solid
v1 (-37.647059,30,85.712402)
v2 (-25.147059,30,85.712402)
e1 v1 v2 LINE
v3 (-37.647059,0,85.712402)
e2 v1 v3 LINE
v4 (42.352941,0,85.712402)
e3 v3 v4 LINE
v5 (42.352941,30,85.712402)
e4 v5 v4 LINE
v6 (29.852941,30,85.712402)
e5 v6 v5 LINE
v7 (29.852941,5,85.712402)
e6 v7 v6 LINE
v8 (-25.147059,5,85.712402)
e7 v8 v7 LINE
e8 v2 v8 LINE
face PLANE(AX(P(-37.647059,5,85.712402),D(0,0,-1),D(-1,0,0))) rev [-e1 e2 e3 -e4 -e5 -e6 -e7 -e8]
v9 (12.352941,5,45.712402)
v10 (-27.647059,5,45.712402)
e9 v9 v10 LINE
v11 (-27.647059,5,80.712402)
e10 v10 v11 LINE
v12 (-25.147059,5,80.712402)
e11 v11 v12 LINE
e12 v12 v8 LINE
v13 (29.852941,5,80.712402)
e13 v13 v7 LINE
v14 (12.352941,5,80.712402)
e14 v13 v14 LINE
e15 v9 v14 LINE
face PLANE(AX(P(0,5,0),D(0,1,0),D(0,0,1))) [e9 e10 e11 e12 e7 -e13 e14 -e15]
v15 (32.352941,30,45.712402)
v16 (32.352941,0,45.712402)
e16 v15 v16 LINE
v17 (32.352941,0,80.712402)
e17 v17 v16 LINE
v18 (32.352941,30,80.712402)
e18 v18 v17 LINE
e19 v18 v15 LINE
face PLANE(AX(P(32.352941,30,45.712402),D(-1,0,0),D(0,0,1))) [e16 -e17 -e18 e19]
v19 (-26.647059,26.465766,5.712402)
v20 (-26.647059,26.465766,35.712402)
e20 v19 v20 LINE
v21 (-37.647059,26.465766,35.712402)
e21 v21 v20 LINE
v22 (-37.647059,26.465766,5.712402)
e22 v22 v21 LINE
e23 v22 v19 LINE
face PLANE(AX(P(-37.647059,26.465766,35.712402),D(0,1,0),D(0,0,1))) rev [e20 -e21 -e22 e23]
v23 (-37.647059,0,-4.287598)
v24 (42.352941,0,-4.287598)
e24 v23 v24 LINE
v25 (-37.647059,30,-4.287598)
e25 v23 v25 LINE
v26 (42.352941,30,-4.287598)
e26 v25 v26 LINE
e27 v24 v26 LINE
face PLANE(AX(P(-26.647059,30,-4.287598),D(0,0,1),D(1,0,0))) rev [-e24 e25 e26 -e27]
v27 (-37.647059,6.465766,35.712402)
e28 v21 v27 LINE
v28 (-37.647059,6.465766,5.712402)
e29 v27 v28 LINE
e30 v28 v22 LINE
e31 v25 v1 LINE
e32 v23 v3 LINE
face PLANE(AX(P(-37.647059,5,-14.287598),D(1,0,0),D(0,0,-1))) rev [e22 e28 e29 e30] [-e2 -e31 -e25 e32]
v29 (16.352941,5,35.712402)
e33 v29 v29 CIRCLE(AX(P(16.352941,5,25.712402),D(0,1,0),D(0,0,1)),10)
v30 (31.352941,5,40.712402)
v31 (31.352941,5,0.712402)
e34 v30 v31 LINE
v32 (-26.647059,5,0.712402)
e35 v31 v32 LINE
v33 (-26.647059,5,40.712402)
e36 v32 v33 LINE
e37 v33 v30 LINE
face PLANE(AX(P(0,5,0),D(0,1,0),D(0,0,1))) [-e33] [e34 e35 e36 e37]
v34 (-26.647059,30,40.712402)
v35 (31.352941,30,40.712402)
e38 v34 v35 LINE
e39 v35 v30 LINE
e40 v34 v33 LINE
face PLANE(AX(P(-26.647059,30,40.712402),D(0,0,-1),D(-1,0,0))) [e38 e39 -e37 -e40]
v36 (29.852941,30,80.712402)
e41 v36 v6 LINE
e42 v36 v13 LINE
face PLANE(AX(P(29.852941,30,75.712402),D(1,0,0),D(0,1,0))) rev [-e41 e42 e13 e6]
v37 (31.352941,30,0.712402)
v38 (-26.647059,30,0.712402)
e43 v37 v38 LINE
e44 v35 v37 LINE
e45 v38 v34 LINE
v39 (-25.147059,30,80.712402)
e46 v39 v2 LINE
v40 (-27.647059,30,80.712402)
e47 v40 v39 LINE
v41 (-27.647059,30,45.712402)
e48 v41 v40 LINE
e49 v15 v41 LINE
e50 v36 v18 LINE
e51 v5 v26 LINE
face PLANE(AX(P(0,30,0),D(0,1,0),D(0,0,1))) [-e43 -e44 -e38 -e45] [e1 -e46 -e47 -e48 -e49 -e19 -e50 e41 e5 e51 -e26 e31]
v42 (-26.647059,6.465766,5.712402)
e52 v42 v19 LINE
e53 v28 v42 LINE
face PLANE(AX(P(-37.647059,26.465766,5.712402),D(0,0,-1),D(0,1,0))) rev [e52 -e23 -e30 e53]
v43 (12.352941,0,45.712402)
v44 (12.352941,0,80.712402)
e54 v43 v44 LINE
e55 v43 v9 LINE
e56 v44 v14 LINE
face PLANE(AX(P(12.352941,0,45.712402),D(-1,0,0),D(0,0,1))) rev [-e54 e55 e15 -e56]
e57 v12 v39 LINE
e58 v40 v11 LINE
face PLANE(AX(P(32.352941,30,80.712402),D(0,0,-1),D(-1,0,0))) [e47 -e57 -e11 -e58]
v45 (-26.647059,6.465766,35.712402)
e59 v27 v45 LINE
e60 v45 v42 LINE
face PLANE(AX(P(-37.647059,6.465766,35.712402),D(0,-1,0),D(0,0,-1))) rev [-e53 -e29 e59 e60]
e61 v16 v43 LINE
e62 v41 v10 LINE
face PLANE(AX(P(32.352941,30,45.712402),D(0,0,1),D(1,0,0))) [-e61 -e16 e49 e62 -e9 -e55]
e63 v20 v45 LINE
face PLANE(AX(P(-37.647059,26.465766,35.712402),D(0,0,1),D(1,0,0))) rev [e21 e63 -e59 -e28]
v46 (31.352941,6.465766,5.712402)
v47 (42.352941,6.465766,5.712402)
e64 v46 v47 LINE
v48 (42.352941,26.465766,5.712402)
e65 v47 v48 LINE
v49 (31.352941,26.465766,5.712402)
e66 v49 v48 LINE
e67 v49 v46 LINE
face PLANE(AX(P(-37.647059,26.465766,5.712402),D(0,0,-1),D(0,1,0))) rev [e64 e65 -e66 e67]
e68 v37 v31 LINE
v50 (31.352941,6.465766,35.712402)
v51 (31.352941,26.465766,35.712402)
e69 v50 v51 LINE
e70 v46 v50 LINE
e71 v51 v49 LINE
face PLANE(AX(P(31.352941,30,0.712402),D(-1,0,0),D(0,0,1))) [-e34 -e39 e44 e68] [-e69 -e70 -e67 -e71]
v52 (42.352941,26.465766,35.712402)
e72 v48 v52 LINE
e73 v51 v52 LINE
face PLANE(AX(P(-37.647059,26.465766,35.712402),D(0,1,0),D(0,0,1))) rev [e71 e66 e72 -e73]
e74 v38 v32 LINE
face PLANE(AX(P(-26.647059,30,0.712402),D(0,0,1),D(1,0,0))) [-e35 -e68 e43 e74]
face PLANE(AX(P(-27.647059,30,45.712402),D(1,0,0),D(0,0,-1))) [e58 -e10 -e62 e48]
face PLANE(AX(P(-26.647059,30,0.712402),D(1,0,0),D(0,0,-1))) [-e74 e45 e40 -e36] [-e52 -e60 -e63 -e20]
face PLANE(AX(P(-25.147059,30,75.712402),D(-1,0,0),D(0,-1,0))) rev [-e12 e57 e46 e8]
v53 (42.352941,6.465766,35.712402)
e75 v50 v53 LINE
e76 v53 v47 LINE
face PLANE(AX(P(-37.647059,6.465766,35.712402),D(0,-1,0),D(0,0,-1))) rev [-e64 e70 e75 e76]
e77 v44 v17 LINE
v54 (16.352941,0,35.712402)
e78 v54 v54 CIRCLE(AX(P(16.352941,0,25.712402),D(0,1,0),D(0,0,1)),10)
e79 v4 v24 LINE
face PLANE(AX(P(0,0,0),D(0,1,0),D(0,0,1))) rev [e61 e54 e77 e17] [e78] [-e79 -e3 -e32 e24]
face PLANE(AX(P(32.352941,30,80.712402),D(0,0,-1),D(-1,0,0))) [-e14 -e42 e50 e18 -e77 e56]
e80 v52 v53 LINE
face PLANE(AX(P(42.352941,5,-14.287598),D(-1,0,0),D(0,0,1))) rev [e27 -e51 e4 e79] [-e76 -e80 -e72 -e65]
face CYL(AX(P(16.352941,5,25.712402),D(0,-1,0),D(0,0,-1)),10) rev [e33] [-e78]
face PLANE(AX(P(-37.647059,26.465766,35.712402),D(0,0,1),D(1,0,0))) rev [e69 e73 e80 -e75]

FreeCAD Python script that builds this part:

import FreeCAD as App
import Part
import Sketcher
from FreeCAD import Vector
Q = App.Units.Quantity


def add_polygon(sketch, points):
    """Adds a closed chain of lines whose ends are joined by coincident constraints."""
    first, n = sketch.GeometryCount, len(points)
    for a, b in zip(points, points[1:] + points[:1]):
        sketch.addGeometry(Part.LineSegment(App.Vector(*a, 0), App.Vector(*b, 0)), False)
    for i in range(n):
        sketch.addConstraint(Sketcher.Constraint("Coincident", first + i, 2, first + (i + 1) % n, 1))

doc = App.newDocument("Part")
body = doc.addObject("PartDesign::Body", "Body")

# Sketch on XZ plane
sketch1 = body.newObject("Sketcher::SketchObject", "Sketch")
sketch1.AttachmentSupport = (doc.getObject("XZ_Plane"), [""])
sketch1.MapMode = "FlatFace"
add_polygon(sketch1, [(-38, -14), (-38, 86), (42, 86), (42, -14)])  # lines 0-3
sketch1.addGeometry(Part.Circle(Vector(16, 26, 0), Vector(0, 0, 1), 10), False)  # 4
sketch1.addConstraint([
    Sketcher.Constraint("Vertical", 0),
    Sketcher.Constraint("Horizontal", 1),
    Sketcher.Constraint("Vertical", 2),
    Sketcher.Constraint("Horizontal", 3),
    Sketcher.Constraint("Diameter", 4, Q("20 mm")),
    Sketcher.Constraint("DistanceX", 1, 1, 1, 2, Q("80 mm")),
    Sketcher.Constraint("DistanceY", 0, 1, 0, 2, Q("100 mm")),
    Sketcher.Constraint("DistanceX", 0, 2, 4, 3, Q("54 mm")),
    Sketcher.Constraint("DistanceY", 4, 3, 0, 2, Q("60 mm")),
    Sketcher.Constraint("DistanceX", -1, 1, 4, 3, Q("16.352941 mm")),
    Sketcher.Constraint("DistanceY", -1, 1, 4, 3, Q("25.712402 mm")),
])
pad1 = body.newObject("PartDesign::Pad", "Pad")
pad1.Profile = sketch1
pad1.Length = 5
pad1.Reversed = True

# Sketch on XZ plane
sketch2 = body.newObject("Sketcher::SketchObject", "Sketch001")
sketch2.AttachmentSupport = (doc.getObject("XZ_Plane"), [""])
sketch2.MapMode = "FlatFace"
sketch2.AttachmentOffset = App.Placement(Vector(0, 0, -5), App.Rotation())
add_polygon(sketch2, [(-38, -14), (-38, 86), (42, 86), (42, -14)])  # lines 0-3
add_polygon(sketch2, [(32, 81), (-28, 81), (-28, 46), (32, 46)])  # lines 4-7
add_polygon(sketch2, [(31, 41), (-27, 41), (-27, 1), (31, 1)])  # lines 8-11
sketch2.addConstraint([
    Sketcher.Constraint("Vertical", 0),
    Sketcher.Constraint("Horizontal", 1),
    Sketcher.Constraint("Vertical", 2),
    Sketcher.Constraint("Horizontal", 3),
    Sketcher.Constraint("Horizontal", 4),
    Sketcher.Constraint("Vertical", 5),
    Sketcher.Constraint("Horizontal", 6),
    Sketcher.Constraint("Vertical", 7),
    Sketcher.Constraint("Horizontal", 8),
    Sketcher.Constraint("Vertical", 9),
    Sketcher.Constraint("Horizontal", 10),
    Sketcher.Constraint("Vertical", 11),
    Sketcher.Constraint("DistanceX", 1, 1, 1, 2, Q("80 mm")),
    Sketcher.Constraint("DistanceX", 4, 2, 4, 1, Q("60 mm")),
    Sketcher.Constraint("DistanceX", 8, 2, 8, 1, Q("58 mm")),
    Sketcher.Constraint("DistanceY", 0, 1, 0, 2, Q("100 mm")),
    Sketcher.Constraint("DistanceY", 5, 2, 5, 1, Q("35 mm")),
    Sketcher.Constraint("DistanceY", 9, 2, 9, 1, Q("40 mm")),
    Sketcher.Constraint("DistanceX", 0, 2, 4, 2, Q("10 mm")),
    Sketcher.Constraint("DistanceY", 4, 2, 0, 2, Q("5 mm")),
    Sketcher.Constraint("DistanceX", 5, 2, 8, 2, Q("1 mm")),
    Sketcher.Constraint("DistanceY", 8, 2, 5, 2, Q("5 mm")),
    Sketcher.Constraint("DistanceX", 0, 2, -1, 1, Q("37.647059 mm")),
    Sketcher.Constraint("DistanceY", -1, 1, 0, 2, Q("85.712402 mm")),
])
pad2 = body.newObject("PartDesign::Pad", "Pad001")
pad2.Profile = sketch2
pad2.Length = 25
pad2.Reversed = True

# Sketch on XY plane
sketch3 = body.newObject("Sketcher::SketchObject", "Sketch002")
sketch3.AttachmentSupport = (doc.getObject("XY_Plane"), [""])
sketch3.MapMode = "FlatFace"
sketch3.AttachmentOffset = App.Placement(Vector(0, 0, -12.287598), App.Rotation())
add_polygon(sketch3, [(41, 29), (41, 1), (-37, 1), (-37, 29)])  # lines 0-3
sketch3.addConstraint([
    Sketcher.Constraint("Vertical", 0),
    Sketcher.Constraint("Horizontal", 1),
    Sketcher.Constraint("Vertical", 2),
    Sketcher.Constraint("Horizontal", 3),
    Sketcher.Constraint("DistanceX", 1, 2, 1, 1, Q("78 mm")),
    Sketcher.Constraint("DistanceY", -1, 1, 0, 2, Q("1 mm")),
    Sketcher.Constraint("DistanceY", 0, 2, 0, 1, Q("27.979665 mm")),
    Sketcher.Constraint("DistanceX", -1, 1, 0, 2, Q("41.352941 mm")),
])
pocket1 = body.newObject("PartDesign::Pocket", "Pocket")
pocket1.Profile = sketch3
pocket1.Length = 8
pocket1.Reversed = True

# Sketch on XZ plane
sketch4 = body.newObject("Sketcher::SketchObject", "Sketch003")
sketch4.AttachmentSupport = (doc.getObject("XZ_Plane"), [""])
sketch4.MapMode = "FlatFace"
sketch4.AttachmentOffset = App.Placement(Vector(0, 0, -30), App.Rotation())
add_polygon(sketch4, [(-38, -14), (-38, -4), (42, -4), (42, -14)])  # lines 0-3
sketch4.addConstraint([
    Sketcher.Constraint("Vertical", 0),
    Sketcher.Constraint("Horizontal", 1),
    Sketcher.Constraint("Vertical", 2),
    Sketcher.Constraint("Horizontal", 3),
    Sketcher.Constraint("DistanceX", 1, 1, 1, 2, Q("80 mm")),
    Sketcher.Constraint("DistanceY", 0, 1, 0, 2, Q("10 mm")),
    Sketcher.Constraint("DistanceX", 0, 2, -1, 1, Q("37.647059 mm")),
    Sketcher.Constraint("DistanceY", 0, 2, -1, 1, Q("4.287598 mm")),
])
pocket2 = body.newObject("PartDesign::Pocket", "Pocket001")
pocket2.Profile = sketch4
pocket2.Type = "ThroughAll"
pocket2.Reversed = True

# Sketch on YZ plane
sketch5 = body.newObject("Sketcher::SketchObject", "Sketch004")
sketch5.AttachmentSupport = (doc.getObject("YZ_Plane"), [""])
sketch5.MapMode = "FlatFace"
sketch5.AttachmentOffset = App.Placement(Vector(0, 0, 42.352941), App.Rotation())
add_polygon(sketch5, [(26, 36), (6, 36), (6, 6), (26, 6)])  # lines 0-3
sketch5.addConstraint([
    Sketcher.Constraint("Horizontal", 0),
    Sketcher.Constraint("Vertical", 1),
    Sketcher.Constraint("Horizontal", 2),
    Sketcher.Constraint("Vertical", 3),
    Sketcher.Constraint("DistanceX", 0, 2, 0, 1, Q("20 mm")),
    Sketcher.Constraint("DistanceY", 1, 2, 1, 1, Q("30 mm")),
    Sketcher.Constraint("DistanceX", -1, 1, 0, 2, Q("6.465766 mm")),
    Sketcher.Constraint("DistanceY", -1, 1, 0, 2, Q("35.712402 mm")),
])
pocket3 = body.newObject("PartDesign::Pocket", "Pocket002")
pocket3.Profile = sketch5
pocket3.Type = "ThroughAll"

# Sketch on XZ plane
sketch6 = body.newObject("Sketcher::SketchObject", "Sketch005")
sketch6.AttachmentSupport = (doc.getObject("XZ_Plane"), [""])
sketch6.MapMode = "FlatFace"
sketch6.AttachmentOffset = App.Placement(Vector(0, 0, -5), App.Rotation())
add_polygon(sketch6, [(12, 46), (12, 81), (32, 81), (32, 46)])  # lines 0-3
sketch6.addConstraint([
    Sketcher.Constraint("Vertical", 0),
    Sketcher.Constraint("Horizontal", 1),
    Sketcher.Constraint("Vertical", 2),
    Sketcher.Constraint("Horizontal", 3),
    Sketcher.Constraint("DistanceX", 1, 1, 1, 2, Q("20 mm")),
    Sketcher.Constraint("DistanceY", 0, 1, 0, 2, Q("35 mm")),
    Sketcher.Constraint("DistanceX", -1, 1, 0, 2, Q("12.352941 mm")),
    Sketcher.Constraint("DistanceY", -1, 1, 0, 2, Q("80.712402 mm")),
])
pocket4 = body.newObject("PartDesign::Pocket", "Pocket003")
pocket4.Profile = sketch6
pocket4.Type = "ThroughAll"
pocket4.Reversed = True

# Sketch on XY plane
sketch7 = body.newObject("Sketcher::SketchObject", "Sketch006")
sketch7.AttachmentSupport = (doc.getObject("XY_Plane"), [""])
sketch7.MapMode = "FlatFace"
sketch7.AttachmentOffset = App.Placement(Vector(0, 0, 85.712402), App.Rotation())
add_polygon(sketch7, [(-25, 30), (-25, 5), (30, 5), (30, 30)])  # lines 0-3
sketch7.addConstraint([
    Sketcher.Constraint("Vertical", 0),
    Sketcher.Constraint("Horizontal", 1),
    Sketcher.Constraint("Vertical", 2),
    Sketcher.Constraint("Horizontal", 3),
    Sketcher.Constraint("DistanceX", 1, 1, 1, 2, Q("55 mm")),
    Sketcher.Constraint("DistanceY", 0, 2, 0, 1, Q("25 mm")),
    Sketcher.Constraint("DistanceY", -1, 1, 0, 2, Q("5 mm")),
    Sketcher.Constraint("DistanceX", 0, 2, -1, 1, Q("25.147059 mm")),
])
pocket5 = body.newObject("PartDesign::Pocket", "Pocket004")
pocket5.Profile = sketch7
pocket5.Length = 10

doc.recompute()
